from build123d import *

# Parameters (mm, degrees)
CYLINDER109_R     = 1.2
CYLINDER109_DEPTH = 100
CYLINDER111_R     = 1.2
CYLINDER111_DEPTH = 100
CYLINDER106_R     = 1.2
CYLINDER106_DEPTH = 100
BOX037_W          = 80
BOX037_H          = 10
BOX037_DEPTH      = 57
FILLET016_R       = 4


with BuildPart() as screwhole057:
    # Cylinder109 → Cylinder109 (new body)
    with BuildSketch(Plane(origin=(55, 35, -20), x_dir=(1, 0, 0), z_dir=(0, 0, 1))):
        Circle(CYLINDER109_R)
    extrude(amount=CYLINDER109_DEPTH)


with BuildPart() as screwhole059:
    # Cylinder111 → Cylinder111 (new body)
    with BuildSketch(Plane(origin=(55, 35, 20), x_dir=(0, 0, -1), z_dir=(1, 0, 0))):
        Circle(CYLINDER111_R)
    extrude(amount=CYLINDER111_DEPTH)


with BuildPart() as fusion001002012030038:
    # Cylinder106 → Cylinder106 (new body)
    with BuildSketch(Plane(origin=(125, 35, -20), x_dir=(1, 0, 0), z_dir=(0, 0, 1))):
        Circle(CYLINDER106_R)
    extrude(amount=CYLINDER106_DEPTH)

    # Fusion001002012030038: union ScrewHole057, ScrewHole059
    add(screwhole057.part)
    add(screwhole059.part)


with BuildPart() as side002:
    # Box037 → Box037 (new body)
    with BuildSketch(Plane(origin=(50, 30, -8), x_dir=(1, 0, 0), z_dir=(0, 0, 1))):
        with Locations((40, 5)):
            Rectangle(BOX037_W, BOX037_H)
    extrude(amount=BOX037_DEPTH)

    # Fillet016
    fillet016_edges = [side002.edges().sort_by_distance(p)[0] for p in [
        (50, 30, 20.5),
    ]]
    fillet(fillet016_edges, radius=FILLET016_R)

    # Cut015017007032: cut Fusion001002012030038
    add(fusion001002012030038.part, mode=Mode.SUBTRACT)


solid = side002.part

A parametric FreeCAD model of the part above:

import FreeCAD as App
import Part
import Sketcher
from FreeCAD import Vector


def edges_at(feature, points):
    """Names of the edges that pass closest to the given points."""
    edges = feature.Shape.Edges
    near = lambda p: min(range(len(edges)), key=lambda i: edges[i].distToShape(Part.Vertex(*p))[0])
    return sorted({f"Edge{near(p) + 1}" for p in points})

doc = App.newDocument("Part")
body = doc.addObject("PartDesign::Body", "Body")

# Sketch on XY plane
sketch1 = body.newObject("Sketcher::SketchObject", "Sketch")
sketch1.AttachmentSupport = (doc.getObject("XY_Plane"), [""])
sketch1.MapMode = "FlatFace"
sketch1.AttachmentOffset = App.Placement(Vector(0, 0, -20), App.Rotation())
sketch1.addGeometry(Part.Circle(Vector(55, 35, 0), Vector(0, 0, 1), 1.2), False)
sketch1.addConstraint([
    Sketcher.Constraint("Diameter", 0, 2.4),
    Sketcher.Constraint("DistanceX", -1, 1, 0, 3, 55.0),
    Sketcher.Constraint("DistanceY", -1, 1, 0, 3, 35.0),
])
pad1 = body.newObject("PartDesign::Pad", "Pad")
pad1.Profile = sketch1
pad1.Length = 100
body2 = doc.addObject("PartDesign::Body", "Body001")

# Sketch on YZ plane
sketch2 = body2.newObject("Sketcher::SketchObject", "Sketch001")
sketch2.AttachmentSupport = (doc.getObject("YZ_Plane001"), [""])
sketch2.MapMode = "FlatFace"
sketch2.AttachmentOffset = App.Placement(Vector(0, 0, 55), App.Rotation())
sketch2.addGeometry(Part.Circle(Vector(35, 20, 0), Vector(0, 0, 1), 1.2), False)
sketch2.addConstraint([
    Sketcher.Constraint("Diameter", 0, 2.4),
    Sketcher.Constraint("DistanceX", -1, 1, 0, 3, 35.0),
    Sketcher.Constraint("DistanceY", -1, 1, 0, 3, 20.0),
])
pad2 = body2.newObject("PartDesign::Pad", "Pad001")
pad2.Profile = sketch2
pad2.Length = 100
body3 = doc.addObject("PartDesign::Body", "Body002")
body3.AllowCompound = True

# Sketch on XY plane
sketch3 = body3.newObject("Sketcher::SketchObject", "Sketch002")
sketch3.AttachmentSupport = (doc.getObject("XY_Plane002"), [""])
sketch3.MapMode = "FlatFace"
sketch3.AttachmentOffset = App.Placement(Vector(0, 0, -20), App.Rotation())
sketch3.addGeometry(Part.Circle(Vector(125, 35, 0), Vector(0, 0, 1), 1.2), False)
sketch3.addConstraint([
    Sketcher.Constraint("Diameter", 0, 2.4),
    Sketcher.Constraint("DistanceX", -1, 1, 0, 3, 125.0),
    Sketcher.Constraint("DistanceY", -1, 1, 0, 3, 35.0),
])
pad3 = body3.newObject("PartDesign::Pad", "Pad002")
pad3.Profile = sketch3
pad3.Length = 100
doc.recompute()

boolean = body3.newObject("PartDesign::Boolean", "Boolean")
boolean.Type = "Fuse"
boolean.addObjects([body])
doc.recompute()

boolean2 = body3.newObject("PartDesign::Boolean", "Boolean001")
boolean2.Type = "Fuse"
boolean2.addObjects([body2])
body4 = doc.addObject("PartDesign::Body", "Body003")

# Sketch on XY plane
sketch4 = body4.newObject("Sketcher::SketchObject", "Sketch003")
sketch4.AttachmentSupport = (doc.getObject("XY_Plane003"), [""])
sketch4.MapMode = "FlatFace"
sketch4.AttachmentOffset = App.Placement(Vector(0, 0, -8), App.Rotation())
sketch4.addGeometry([
    Part.LineSegment(Vector(50, 40, 0), Vector(50, 30, 0)),
    Part.LineSegment(Vector(50, 30, 0), Vector(130, 30, 0)),
    Part.LineSegment(Vector(130, 30, 0), Vector(130, 40, 0)),
    Part.LineSegment(Vector(130, 40, 0), Vector(50, 40, 0)),
], False)
sketch4.addConstraint([
    Sketcher.Constraint("Coincident", 0, 2, 1, 1),
    Sketcher.Constraint("Coincident", 1, 2, 2, 1),
    Sketcher.Constraint("Coincident", 2, 2, 3, 1),
    Sketcher.Constraint("Coincident", 3, 2, 0, 1),
    Sketcher.Constraint("Vertical", 0),
    Sketcher.Constraint("Horizontal", 1),
    Sketcher.Constraint("Vertical", 2),
    Sketcher.Constraint("Horizontal", 3),
    Sketcher.Constraint("DistanceX", 1, 1, 1, 2, 80.0),
    Sketcher.Constraint("DistanceY", 0, 2, 0, 1, 10.0),
    Sketcher.Constraint("DistanceX", -1, 1, 0, 2, 50.0),
    Sketcher.Constraint("DistanceY", -1, 1, 0, 2, 30.0),
])
pad4 = body4.newObject("PartDesign::Pad", "Pad003")
pad4.Profile = sketch4
pad4.Length = 57
doc.recompute()

fillet = body4.newObject("PartDesign::Fillet", "Fillet")
fillet.Base = (pad4, edges_at(pad4, [(50, 30, 20.5)]))
fillet.Radius = 4
doc.recompute()

boolean3 = body4.newObject("PartDesign::Boolean", "Boolean002")
boolean3.Type = "Cut"
boolean3.addObjects([body3])

doc.recompute()
